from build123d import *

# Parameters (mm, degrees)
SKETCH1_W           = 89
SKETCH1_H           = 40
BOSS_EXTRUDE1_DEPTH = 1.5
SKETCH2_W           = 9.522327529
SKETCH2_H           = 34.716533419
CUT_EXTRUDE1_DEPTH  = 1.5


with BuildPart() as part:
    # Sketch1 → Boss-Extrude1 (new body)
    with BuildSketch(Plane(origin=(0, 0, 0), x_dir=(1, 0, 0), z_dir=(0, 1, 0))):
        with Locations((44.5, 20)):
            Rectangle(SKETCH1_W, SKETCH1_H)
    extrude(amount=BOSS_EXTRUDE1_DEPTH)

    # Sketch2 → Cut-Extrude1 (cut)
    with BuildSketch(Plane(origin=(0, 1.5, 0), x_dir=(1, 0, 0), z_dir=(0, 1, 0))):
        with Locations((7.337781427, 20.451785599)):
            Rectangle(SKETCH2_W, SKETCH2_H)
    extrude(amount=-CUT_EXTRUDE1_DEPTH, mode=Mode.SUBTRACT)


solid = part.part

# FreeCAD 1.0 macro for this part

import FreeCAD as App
import Part
import Sketcher
from FreeCAD import Vector
Q = App.Units.Quantity


def add_polygon(sketch, points):
    """Adds a closed chain of lines whose ends are joined by coincident constraints."""
    first, n = sketch.GeometryCount, len(points)
    for a, b in zip(points, points[1:] + points[:1]):
        sketch.addGeometry(Part.LineSegment(App.Vector(*a, 0), App.Vector(*b, 0)), False)
    for i in range(n):
        sketch.addConstraint(Sketcher.Constraint("Coincident", first + i, 2, first + (i + 1) % n, 1))

doc = App.newDocument("Part")
body = doc.addObject("PartDesign::Body", "Body")

# Sketch on XZ plane
sketch1 = body.newObject("Sketcher::SketchObject", "Sketch")
sketch1.AttachmentSupport = (doc.getObject("XZ_Plane"), [""])
sketch1.MapMode = "FlatFace"
add_polygon(sketch1, [(0, -40), (0, 0), (89, 0), (89, -40)])  # lines 0-3
sketch1.addConstraint([
    Sketcher.Constraint("Vertical", 0),
    Sketcher.Constraint("Horizontal", 1),
    Sketcher.Constraint("Vertical", 2),
    Sketcher.Constraint("Horizontal", 3),
    Sketcher.Constraint("Coincident", 0, 2, -1, 1),
    Sketcher.Constraint("DistanceX", 1, 1, 1, 2, Q("89 mm")),
    Sketcher.Constraint("DistanceY", 0, 1, 0, 2, Q("40 mm")),
])
pad1 = body.newObject("PartDesign::Pad", "Pad")
pad1.Profile = sketch1
pad1.Length = 1.5
pad1.Reversed = True

# Sketch on XZ plane
sketch2 = body.newObject("Sketcher::SketchObject", "Sketch001")
sketch2.AttachmentSupport = (doc.getObject("XZ_Plane"), [""])
sketch2.MapMode = "FlatFace"
sketch2.AttachmentOffset = App.Placement(Vector(0, 0, -1.5), App.Rotation())
add_polygon(sketch2, [(3, -38), (3, -3), (12, -3), (12, -38)])  # lines 0-3
sketch2.addConstraint([
    Sketcher.Constraint("Vertical", 0),
    Sketcher.Constraint("Horizontal", 1),
    Sketcher.Constraint("Vertical", 2),
    Sketcher.Constraint("Horizontal", 3),
    Sketcher.Constraint("DistanceX", 1, 1, 1, 2, Q("9.522328 mm")),
    Sketcher.Constraint("DistanceY", 0, 1, 0, 2, Q("34.716533 mm")),
    Sketcher.Constraint("DistanceY", 0, 2, -1, 1, Q("3.093519 mm")),
    Sketcher.Constraint("DistanceX", -1, 1, 0, 2, Q("2.576618 mm")),
])
pocket1 = body.newObject("PartDesign::Pocket", "Pocket")
pocket1.Profile = sketch2
pocket1.Length = 1.5
pocket1.Reversed = True

doc.recompute()
